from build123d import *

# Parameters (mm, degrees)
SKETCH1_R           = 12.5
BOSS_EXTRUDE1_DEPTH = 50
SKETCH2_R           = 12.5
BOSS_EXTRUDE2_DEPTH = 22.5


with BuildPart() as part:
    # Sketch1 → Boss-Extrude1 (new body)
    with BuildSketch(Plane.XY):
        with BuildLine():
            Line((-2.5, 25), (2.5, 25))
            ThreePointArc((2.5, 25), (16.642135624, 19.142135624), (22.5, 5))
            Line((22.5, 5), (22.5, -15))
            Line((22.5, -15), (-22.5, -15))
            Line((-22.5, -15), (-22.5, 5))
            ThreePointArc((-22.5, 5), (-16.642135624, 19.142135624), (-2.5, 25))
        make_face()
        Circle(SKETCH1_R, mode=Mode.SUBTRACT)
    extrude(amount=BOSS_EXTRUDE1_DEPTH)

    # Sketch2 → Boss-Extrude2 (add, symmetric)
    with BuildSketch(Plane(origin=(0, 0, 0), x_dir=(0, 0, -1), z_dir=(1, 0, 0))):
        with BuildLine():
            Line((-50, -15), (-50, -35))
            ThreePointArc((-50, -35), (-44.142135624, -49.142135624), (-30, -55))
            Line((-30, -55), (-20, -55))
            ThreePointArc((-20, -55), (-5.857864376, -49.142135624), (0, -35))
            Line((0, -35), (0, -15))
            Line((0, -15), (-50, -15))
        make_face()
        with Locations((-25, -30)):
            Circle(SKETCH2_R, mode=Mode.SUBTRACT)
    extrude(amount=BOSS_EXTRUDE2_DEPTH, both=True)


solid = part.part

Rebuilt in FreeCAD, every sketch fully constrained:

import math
import FreeCAD as App
import Part
import Sketcher
from FreeCAD import Vector
Q = App.Units.Quantity

doc = App.newDocument("Part")
body = doc.addObject("PartDesign::Body", "Body")

# Sketch on XY plane
sketch1 = doc.addObject("Sketcher::SketchObject", "Sketch")
body.addObject(sketch1)
sketch1.AttachmentSupport = (doc.XY_Plane, [""])
sketch1.MapMode = "FlatFace"
sketch1.addGeometry([
    Part.LineSegment(Vector(2.5, 25, 0), Vector(-2.5, 25, 0)),  # 0
    Part.ArcOfCircle(Part.Circle(Vector(-2.5, 5, 0), Vector(0, 0, 1), 20), math.radians(90), math.radians(180)),  # 1
    Part.LineSegment(Vector(-22.5, 5, 0), Vector(-22.5, -15, 0)),  # 2
    Part.LineSegment(Vector(-22.5, -15, 0), Vector(22.5, -15, 0)),  # 3
    Part.LineSegment(Vector(22.5, -15, 0), Vector(22.5, 5, 0)),  # 4
    Part.ArcOfCircle(Part.Circle(Vector(2.5, 5, 0), Vector(0, 0, 1), 20), math.radians(0), math.radians(90)),  # 5
    Part.Circle(Vector(0, 0, 0), Vector(0, 0, 1), 12.5),  # 6
], False)
sketch1.addConstraint([
    Sketcher.Constraint("Tangent", 0, 2, 1, 1),
    Sketcher.Constraint("Tangent", 1, 2, 2, 1),
    Sketcher.Constraint("Coincident", 2, 2, 3, 1),
    Sketcher.Constraint("Coincident", 3, 2, 4, 1),
    Sketcher.Constraint("Tangent", 4, 2, 5, 1),
    Sketcher.Constraint("Tangent", 5, 2, 0, 1),
    Sketcher.Constraint("Horizontal", 0),
    Sketcher.Constraint("Vertical", 2),
    Sketcher.Constraint("Horizontal", 3),
    Sketcher.Constraint("Vertical", 4),
    Sketcher.Constraint("Coincident", 6, 3, -1, 1),
    Sketcher.Constraint("Equal", 1, 5),
    Sketcher.Constraint("Diameter", 6, Q("25 mm")),
    Sketcher.Constraint("Radius", 1, Q("20 mm")),
    Sketcher.Constraint("DistanceX", 0, 2, 0, 1, Q("5 mm")),
    Sketcher.Constraint("DistanceY", 2, 2, 2, 1, Q("20 mm")),
    Sketcher.Constraint("DistanceY", -1, 1, 1, 3, Q("5 mm")),
    Sketcher.Constraint("DistanceX", 1, 3, -1, 1, Q("2.5 mm")),
])
pad1 = doc.addObject("PartDesign::Pad", "Pad")
body.addObject(pad1)
pad1.Profile = sketch1
pad1.Length = 50

# Sketch on YZ plane
sketch2 = doc.addObject("Sketcher::SketchObject", "Sketch001")
body.addObject(sketch2)
sketch2.AttachmentSupport = (doc.YZ_Plane, [""])
sketch2.MapMode = "FlatFace"
sketch2.addGeometry([
    Part.LineSegment(Vector(-15, 50, 0), Vector(-35, 50, 0)),  # 0
    Part.ArcOfCircle(Part.Circle(Vector(-35, 30, 0), Vector(0, 0, 1), 20), math.radians(90), math.radians(180)),  # 1
    Part.LineSegment(Vector(-55, 30, 0), Vector(-55, 20, 0)),  # 2
    Part.ArcOfCircle(Part.Circle(Vector(-35, 20, 0), Vector(0, 0, 1), 20), math.radians(180), math.radians(270)),  # 3
    Part.LineSegment(Vector(-35, 0, 0), Vector(-15, 0, 0)),  # 4
    Part.LineSegment(Vector(-15, 0, 0), Vector(-15, 50, 0)),  # 5
    Part.Circle(Vector(-30, 25, 0), Vector(0, 0, 1), 12.5),  # 6
], False)
sketch2.addConstraint([
    Sketcher.Constraint("Tangent", 0, 2, 1, 1),
    Sketcher.Constraint("Tangent", 1, 2, 2, 1),
    Sketcher.Constraint("Tangent", 2, 2, 3, 1),
    Sketcher.Constraint("Tangent", 3, 2, 4, 1),
    Sketcher.Constraint("Coincident", 4, 2, 5, 1),
    Sketcher.Constraint("Coincident", 5, 2, 0, 1),
    Sketcher.Constraint("Horizontal", 0),
    Sketcher.Constraint("Vertical", 2),
    Sketcher.Constraint("Horizontal", 4),
    Sketcher.Constraint("Vertical", 5),
    Sketcher.Constraint("Equal", 1, 3),
    Sketcher.Constraint("PointOnObject", 3, 2, -1),
    Sketcher.Constraint("Diameter", 6, Q("25 mm")),
    Sketcher.Constraint("Radius", 1, Q("20 mm")),
    Sketcher.Constraint("DistanceX", 0, 2, 0, 1, Q("20 mm")),
    Sketcher.Constraint("DistanceY", 2, 2, 2, 1, Q("10 mm")),
    Sketcher.Constraint("DistanceX", 1, 3, -1, 1, Q("35 mm")),
    Sketcher.Constraint("DistanceX", 6, 3, -1, 1, Q("30 mm")),
    Sketcher.Constraint("DistanceY", -1, 1, 6, 3, Q("25 mm")),
])
pad2 = doc.addObject("PartDesign::Pad", "Pad001")
body.addObject(pad2)
pad2.Profile = sketch2
pad2.Length = 45
pad2.Midplane = True

doc.recompute()
